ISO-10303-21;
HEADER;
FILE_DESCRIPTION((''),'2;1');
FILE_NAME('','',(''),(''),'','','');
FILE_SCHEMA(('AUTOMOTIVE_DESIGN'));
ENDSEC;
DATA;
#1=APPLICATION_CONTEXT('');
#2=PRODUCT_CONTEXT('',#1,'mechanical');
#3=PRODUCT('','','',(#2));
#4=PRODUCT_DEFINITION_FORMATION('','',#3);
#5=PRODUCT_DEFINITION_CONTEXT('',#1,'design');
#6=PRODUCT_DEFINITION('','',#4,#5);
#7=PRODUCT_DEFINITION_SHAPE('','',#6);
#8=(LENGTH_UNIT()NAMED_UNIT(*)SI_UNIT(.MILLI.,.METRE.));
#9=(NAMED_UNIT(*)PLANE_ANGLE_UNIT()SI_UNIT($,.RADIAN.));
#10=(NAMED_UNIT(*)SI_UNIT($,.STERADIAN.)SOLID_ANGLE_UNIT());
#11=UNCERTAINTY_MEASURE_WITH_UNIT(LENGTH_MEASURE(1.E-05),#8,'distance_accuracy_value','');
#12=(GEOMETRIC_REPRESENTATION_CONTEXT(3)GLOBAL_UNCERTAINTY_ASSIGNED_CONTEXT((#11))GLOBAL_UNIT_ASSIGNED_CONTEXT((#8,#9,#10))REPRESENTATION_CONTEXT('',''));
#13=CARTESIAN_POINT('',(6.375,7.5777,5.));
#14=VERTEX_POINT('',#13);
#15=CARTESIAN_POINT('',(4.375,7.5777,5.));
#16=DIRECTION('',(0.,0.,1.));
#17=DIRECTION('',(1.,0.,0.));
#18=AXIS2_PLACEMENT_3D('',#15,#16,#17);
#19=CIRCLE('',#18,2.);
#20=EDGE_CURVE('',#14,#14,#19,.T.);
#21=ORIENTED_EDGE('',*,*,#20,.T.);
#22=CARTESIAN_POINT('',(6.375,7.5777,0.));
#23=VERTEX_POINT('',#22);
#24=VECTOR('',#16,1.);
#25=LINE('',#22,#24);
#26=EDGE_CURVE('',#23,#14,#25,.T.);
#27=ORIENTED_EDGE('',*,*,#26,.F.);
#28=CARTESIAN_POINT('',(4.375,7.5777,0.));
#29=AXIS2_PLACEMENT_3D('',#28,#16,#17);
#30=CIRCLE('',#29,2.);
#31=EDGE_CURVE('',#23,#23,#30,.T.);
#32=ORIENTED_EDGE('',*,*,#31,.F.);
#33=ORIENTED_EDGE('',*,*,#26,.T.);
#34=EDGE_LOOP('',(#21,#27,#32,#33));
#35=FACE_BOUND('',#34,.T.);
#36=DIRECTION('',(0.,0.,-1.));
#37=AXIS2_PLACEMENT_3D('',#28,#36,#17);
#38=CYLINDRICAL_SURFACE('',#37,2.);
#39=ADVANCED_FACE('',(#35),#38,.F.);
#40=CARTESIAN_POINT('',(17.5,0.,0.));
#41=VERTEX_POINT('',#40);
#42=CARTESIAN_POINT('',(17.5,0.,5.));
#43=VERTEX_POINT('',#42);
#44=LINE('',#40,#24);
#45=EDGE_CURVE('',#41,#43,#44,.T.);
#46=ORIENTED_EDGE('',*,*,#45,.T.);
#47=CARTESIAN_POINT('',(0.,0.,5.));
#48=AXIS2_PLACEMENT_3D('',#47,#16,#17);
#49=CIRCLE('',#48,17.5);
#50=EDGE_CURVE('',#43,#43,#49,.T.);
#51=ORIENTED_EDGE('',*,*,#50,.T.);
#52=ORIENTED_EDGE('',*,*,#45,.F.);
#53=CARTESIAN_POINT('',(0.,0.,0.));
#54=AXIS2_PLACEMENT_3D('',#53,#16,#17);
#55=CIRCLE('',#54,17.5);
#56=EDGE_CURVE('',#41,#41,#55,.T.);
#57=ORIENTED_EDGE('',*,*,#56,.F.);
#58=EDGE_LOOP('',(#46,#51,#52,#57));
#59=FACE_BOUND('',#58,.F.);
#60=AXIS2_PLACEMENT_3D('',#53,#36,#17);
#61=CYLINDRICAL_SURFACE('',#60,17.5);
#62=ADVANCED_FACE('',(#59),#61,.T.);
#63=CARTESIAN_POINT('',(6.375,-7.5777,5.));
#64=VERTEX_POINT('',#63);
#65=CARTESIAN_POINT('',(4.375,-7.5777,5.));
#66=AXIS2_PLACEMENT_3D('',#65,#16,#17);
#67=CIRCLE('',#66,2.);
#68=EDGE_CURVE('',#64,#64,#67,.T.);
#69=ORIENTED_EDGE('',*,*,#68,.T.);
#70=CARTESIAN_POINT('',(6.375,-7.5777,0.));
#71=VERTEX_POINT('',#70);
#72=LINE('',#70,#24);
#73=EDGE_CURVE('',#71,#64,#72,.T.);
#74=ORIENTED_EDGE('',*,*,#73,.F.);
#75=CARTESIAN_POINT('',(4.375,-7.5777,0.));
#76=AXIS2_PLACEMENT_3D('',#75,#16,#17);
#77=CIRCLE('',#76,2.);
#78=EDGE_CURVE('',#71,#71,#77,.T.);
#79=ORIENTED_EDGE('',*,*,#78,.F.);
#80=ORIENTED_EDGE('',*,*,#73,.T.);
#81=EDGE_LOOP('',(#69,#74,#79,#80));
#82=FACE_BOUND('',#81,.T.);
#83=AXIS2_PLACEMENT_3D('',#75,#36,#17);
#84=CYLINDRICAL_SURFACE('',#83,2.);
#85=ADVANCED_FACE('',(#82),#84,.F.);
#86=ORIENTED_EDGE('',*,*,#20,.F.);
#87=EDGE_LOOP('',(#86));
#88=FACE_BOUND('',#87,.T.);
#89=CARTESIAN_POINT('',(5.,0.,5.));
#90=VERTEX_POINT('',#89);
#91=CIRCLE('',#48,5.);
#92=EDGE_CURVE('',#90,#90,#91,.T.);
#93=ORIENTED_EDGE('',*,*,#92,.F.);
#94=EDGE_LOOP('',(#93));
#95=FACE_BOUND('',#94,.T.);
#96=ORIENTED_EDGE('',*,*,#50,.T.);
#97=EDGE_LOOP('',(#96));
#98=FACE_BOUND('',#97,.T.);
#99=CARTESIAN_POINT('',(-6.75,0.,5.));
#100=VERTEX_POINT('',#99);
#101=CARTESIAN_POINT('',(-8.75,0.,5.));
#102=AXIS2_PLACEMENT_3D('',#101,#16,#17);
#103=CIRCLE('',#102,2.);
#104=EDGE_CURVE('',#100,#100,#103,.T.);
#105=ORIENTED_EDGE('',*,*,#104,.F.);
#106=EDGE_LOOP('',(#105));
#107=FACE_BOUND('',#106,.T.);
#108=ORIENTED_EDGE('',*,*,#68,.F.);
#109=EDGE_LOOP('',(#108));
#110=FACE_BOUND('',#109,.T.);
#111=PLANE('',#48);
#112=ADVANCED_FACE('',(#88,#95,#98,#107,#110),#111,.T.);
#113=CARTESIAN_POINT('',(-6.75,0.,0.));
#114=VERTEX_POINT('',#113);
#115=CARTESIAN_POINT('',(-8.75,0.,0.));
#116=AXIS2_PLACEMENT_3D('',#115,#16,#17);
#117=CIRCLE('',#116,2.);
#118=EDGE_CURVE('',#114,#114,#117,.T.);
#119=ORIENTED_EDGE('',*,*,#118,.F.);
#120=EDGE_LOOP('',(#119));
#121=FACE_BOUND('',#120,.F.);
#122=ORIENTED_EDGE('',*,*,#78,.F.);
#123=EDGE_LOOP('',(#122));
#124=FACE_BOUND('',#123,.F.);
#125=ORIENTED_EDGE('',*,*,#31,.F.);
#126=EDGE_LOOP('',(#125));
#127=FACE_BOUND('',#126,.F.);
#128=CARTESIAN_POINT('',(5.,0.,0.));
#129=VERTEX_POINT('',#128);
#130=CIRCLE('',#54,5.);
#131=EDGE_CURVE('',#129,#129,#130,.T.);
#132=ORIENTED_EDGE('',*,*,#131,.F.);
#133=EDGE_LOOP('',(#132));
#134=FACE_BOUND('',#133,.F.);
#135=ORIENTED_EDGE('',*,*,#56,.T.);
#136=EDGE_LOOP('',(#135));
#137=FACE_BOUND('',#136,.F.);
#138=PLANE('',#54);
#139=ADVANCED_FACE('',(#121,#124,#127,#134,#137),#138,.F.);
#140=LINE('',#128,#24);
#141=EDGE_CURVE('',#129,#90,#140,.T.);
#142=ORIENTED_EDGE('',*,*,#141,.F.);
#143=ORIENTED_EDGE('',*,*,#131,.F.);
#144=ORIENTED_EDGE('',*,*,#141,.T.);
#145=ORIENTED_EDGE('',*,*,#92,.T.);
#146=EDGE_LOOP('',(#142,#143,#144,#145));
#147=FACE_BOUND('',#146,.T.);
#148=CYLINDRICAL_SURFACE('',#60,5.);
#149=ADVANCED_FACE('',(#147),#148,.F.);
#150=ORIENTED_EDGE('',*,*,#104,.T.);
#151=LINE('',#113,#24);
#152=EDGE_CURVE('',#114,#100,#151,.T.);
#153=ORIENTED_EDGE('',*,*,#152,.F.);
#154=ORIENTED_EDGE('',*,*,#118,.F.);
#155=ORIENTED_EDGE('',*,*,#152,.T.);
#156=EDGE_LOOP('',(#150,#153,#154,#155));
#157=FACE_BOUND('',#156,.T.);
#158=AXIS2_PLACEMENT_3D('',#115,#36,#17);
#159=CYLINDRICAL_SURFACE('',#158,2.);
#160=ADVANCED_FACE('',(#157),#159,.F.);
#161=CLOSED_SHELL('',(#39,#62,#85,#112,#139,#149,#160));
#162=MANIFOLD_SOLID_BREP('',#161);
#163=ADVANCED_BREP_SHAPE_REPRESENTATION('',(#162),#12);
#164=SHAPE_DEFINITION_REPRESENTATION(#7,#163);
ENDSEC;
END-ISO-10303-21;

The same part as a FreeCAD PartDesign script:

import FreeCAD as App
import Part
import Sketcher

V = App.Vector
Q = App.Units.Quantity

doc = App.newDocument("Part")
body = doc.addObject("PartDesign::Body", "Body")

# Sketch on XY plane
sketch1 = doc.addObject("Sketcher::SketchObject", "Sketch")
body.addObject(sketch1)
sketch1.AttachmentSupport = (doc.XY_Plane, [""])
sketch1.MapMode = "FlatFace"
sketch1.addGeometry([
    Part.Circle(V(0, 0, 0), V(0, 0, 1), 17.5),  # 0
    Part.Circle(V(4.4, -7.6, 0), V(0, 0, 1), 2),  # 1
    Part.Circle(V(-8.8, 0, 0), V(0, 0, 1), 2),  # 2
    Part.Circle(V(0, 0, 0), V(0, 0, 1), 5),  # 3
    Part.Circle(V(4.4, 7.6, 0), V(0, 0, 1), 2),  # 4
], False)
sketch1.addConstraint([
    Sketcher.Constraint("Coincident", 0, 3, -1, 1),
    Sketcher.Constraint("Coincident", 3, 3, -1, 1),
    Sketcher.Constraint("Equal", 1, 2),
    Sketcher.Constraint("Equal", 2, 4),
    Sketcher.Constraint("Symmetric", 1, 3, 4, 3, -1),
    Sketcher.Constraint("PointOnObject", 2, 3, -1),
    Sketcher.Constraint("Diameter", 0, Q("35 mm")),
    Sketcher.Constraint("Diameter", 1, Q("4 mm")),
    Sketcher.Constraint("Diameter", 3, Q("10 mm")),
    Sketcher.Constraint("DistanceX", 2, 3, -1, 1, Q("8.75 mm")),
    Sketcher.Constraint("DistanceX", -1, 1, 1, 3, Q("4.375 mm")),
    Sketcher.Constraint("DistanceY", 1, 3, -1, 1, Q("7.5777 mm")),
])
pad1 = doc.addObject("PartDesign::Pad", "Pad")
body.addObject(pad1)
pad1.Profile = sketch1
pad1.Length = 5

doc.recompute()
